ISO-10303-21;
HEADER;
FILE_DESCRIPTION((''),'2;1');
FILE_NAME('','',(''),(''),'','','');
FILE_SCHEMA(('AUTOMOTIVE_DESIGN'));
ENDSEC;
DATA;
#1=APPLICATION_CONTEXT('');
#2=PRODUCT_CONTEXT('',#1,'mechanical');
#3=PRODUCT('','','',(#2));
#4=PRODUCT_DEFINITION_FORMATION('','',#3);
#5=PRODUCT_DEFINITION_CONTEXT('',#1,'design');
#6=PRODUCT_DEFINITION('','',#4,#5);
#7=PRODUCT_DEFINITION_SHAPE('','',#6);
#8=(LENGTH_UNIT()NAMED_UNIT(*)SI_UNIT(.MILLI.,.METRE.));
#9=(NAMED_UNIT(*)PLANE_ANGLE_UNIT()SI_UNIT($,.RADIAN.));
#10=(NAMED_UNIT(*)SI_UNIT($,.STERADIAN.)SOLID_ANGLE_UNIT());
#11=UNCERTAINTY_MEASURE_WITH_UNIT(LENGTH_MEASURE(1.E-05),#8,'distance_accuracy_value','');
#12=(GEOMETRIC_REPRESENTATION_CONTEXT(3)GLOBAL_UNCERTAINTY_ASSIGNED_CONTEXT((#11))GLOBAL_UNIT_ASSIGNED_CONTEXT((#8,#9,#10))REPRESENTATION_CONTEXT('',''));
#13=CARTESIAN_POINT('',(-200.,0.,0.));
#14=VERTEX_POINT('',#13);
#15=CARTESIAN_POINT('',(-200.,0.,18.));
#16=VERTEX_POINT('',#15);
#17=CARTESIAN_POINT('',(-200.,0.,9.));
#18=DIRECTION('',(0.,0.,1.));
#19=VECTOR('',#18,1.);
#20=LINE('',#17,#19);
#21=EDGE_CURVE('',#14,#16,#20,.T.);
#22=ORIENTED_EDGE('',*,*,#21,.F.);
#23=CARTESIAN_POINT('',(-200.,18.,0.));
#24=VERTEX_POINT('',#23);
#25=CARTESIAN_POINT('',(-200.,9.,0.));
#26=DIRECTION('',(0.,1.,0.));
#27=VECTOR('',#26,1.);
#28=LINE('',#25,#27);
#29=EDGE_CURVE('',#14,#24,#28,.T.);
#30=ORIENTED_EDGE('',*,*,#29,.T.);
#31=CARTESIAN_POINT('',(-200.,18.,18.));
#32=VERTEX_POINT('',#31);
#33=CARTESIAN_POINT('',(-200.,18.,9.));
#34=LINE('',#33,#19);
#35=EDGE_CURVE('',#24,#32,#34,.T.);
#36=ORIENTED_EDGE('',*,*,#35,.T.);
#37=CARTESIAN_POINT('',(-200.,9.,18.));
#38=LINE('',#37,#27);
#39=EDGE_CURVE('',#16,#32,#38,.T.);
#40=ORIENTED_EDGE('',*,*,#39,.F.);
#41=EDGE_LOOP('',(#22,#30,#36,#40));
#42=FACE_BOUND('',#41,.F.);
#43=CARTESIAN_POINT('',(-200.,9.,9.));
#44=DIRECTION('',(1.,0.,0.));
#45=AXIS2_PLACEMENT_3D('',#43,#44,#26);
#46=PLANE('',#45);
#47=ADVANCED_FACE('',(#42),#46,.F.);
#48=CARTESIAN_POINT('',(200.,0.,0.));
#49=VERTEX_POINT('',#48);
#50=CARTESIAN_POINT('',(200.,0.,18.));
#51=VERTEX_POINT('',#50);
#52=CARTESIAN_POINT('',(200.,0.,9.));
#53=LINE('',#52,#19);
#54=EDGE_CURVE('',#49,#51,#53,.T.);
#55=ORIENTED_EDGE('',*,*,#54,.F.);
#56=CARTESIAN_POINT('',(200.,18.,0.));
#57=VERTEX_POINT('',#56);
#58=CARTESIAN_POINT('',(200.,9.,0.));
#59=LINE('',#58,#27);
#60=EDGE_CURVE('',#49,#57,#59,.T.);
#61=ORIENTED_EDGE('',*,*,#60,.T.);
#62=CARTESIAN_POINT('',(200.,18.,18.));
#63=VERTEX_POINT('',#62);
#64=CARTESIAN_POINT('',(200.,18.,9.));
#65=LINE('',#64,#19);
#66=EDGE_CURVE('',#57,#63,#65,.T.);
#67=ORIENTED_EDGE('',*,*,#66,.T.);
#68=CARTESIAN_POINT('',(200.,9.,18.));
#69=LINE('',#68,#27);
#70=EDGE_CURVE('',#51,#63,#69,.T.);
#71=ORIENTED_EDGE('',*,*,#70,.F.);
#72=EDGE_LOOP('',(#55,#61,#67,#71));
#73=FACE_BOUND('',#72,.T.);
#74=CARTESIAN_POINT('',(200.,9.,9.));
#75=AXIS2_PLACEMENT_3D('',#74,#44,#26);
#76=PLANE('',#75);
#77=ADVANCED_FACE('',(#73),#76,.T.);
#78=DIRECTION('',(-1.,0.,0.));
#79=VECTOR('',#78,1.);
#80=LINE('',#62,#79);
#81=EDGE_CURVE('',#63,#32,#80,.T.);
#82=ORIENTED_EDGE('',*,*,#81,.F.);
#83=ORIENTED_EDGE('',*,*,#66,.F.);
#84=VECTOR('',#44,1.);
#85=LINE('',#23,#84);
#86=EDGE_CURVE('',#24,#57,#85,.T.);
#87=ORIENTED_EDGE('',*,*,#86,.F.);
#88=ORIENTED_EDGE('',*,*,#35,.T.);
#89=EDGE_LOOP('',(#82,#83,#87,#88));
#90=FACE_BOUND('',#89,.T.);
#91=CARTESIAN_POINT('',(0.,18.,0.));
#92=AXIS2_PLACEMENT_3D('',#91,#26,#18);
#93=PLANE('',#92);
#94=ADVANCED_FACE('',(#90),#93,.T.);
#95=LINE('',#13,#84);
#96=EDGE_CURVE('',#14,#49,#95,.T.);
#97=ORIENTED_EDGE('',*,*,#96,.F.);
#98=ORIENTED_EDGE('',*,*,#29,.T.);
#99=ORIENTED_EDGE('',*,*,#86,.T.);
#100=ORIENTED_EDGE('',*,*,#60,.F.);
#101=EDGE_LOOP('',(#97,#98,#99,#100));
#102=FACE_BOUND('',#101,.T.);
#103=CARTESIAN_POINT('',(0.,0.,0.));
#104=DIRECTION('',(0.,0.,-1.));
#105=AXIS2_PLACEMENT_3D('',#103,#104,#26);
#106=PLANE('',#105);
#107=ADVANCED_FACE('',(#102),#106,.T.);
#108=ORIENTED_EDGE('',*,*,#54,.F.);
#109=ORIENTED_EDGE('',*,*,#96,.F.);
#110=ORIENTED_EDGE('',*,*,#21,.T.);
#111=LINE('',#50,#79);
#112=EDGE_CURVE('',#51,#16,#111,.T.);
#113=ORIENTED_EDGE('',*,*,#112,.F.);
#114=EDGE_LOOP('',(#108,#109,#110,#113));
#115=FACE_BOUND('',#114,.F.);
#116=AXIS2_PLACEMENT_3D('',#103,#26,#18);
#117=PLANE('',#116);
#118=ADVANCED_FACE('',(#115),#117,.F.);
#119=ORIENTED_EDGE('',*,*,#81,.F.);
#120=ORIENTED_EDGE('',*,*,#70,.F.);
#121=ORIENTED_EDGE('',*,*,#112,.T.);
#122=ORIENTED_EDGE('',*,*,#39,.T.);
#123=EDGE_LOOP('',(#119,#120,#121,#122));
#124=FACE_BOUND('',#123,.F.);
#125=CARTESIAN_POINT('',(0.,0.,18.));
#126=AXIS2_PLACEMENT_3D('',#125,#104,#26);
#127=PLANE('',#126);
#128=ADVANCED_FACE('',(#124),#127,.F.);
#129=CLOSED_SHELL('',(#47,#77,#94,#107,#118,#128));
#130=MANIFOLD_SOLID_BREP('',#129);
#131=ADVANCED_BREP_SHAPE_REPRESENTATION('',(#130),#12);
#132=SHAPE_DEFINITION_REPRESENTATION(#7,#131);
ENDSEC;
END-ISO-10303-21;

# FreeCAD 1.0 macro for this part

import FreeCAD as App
import Part
import Sketcher
Q = App.Units.Quantity

doc = App.newDocument("Part")
body = doc.addObject("PartDesign::Body", "Body")

# Sketch on YZ plane
sketch1 = body.newObject("Sketcher::SketchObject", "Sketch")
sketch1.AttachmentSupport = (doc.getObject("YZ_Plane"), [""])
sketch1.MapMode = "FlatFace"
sketch1.addGeometry([
    Part.LineSegment(App.Vector(0, 18, 0), App.Vector(0, 0, 0)),
    Part.LineSegment(App.Vector(0, 0, 0), App.Vector(18, 0, 0)),
    Part.LineSegment(App.Vector(18, 0, 0), App.Vector(18, 18, 0)),
    Part.LineSegment(App.Vector(18, 18, 0), App.Vector(0, 18, 0)),
], False)
sketch1.addConstraint([
    Sketcher.Constraint("Coincident", 0, 2, 1, 1),
    Sketcher.Constraint("Coincident", 1, 2, 2, 1),
    Sketcher.Constraint("Coincident", 2, 2, 3, 1),
    Sketcher.Constraint("Coincident", 3, 2, 0, 1),
    Sketcher.Constraint("Vertical", 0),
    Sketcher.Constraint("Horizontal", 1),
    Sketcher.Constraint("Vertical", 2),
    Sketcher.Constraint("Horizontal", 3),
    Sketcher.Constraint("Coincident", 0, 2, -1, 1),
    Sketcher.Constraint("Equal", 3, 0),
    Sketcher.Constraint("DistanceX", 1, 1, 1, 2, Q("18 mm")),
])
pad1 = body.newObject("PartDesign::Pad", "Pad")
pad1.Profile = sketch1
pad1.Length = 400
pad1.Midplane = True

doc.recompute()
